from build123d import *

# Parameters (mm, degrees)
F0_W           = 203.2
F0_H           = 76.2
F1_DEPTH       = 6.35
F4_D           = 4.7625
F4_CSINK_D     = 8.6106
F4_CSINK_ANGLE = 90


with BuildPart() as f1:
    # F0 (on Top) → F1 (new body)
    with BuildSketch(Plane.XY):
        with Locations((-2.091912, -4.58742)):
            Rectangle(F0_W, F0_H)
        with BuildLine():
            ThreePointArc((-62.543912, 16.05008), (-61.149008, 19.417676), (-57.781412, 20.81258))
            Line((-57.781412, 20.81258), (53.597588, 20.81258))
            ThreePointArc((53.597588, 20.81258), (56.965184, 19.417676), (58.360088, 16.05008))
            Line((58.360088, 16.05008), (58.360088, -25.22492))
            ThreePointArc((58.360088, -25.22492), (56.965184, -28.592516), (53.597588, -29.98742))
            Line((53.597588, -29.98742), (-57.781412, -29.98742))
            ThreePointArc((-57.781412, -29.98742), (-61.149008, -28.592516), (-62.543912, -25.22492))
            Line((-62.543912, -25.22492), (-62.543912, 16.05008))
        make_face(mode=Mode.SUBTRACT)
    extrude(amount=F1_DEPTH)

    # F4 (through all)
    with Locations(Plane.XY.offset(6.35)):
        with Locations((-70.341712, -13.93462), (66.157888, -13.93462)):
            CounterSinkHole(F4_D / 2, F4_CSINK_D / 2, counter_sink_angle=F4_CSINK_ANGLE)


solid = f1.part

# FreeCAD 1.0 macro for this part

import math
import FreeCAD as App
import Part
import Sketcher
from FreeCAD import Vector
Q = App.Units.Quantity

doc = App.newDocument("Part")
body = doc.addObject("PartDesign::Body", "Body")

# Sketch on XY plane
sketch1 = doc.addObject("Sketcher::SketchObject", "Sketch")
body.addObject(sketch1)
sketch1.AttachmentSupport = (doc.XY_Plane, [""])
sketch1.MapMode = "FlatFace"
sketch1.addGeometry([
    Part.LineSegment(Vector(-103.7, 33.5, 0), Vector(-103.7, -42.7, 0)),  # 0
    Part.LineSegment(Vector(-103.7, -42.7, 0), Vector(99.5, -42.7, 0)),  # 1
    Part.LineSegment(Vector(99.5, -42.7, 0), Vector(99.5, 33.5, 0)),  # 2
    Part.LineSegment(Vector(99.5, 33.5, 0), Vector(-103.7, 33.5, 0)),  # 3
    Part.LineSegment(Vector(-62.5, -25.2, 0), Vector(-62.5, 16.1, 0)),  # 4
    Part.ArcOfCircle(Part.Circle(Vector(-57.8, 16.1, 0), Vector(0, 0, 1), 4.8), math.radians(90), math.radians(180)),  # 5
    Part.LineSegment(Vector(-57.8, 20.8, 0), Vector(53.6, 20.8, 0)),  # 6
    Part.ArcOfCircle(Part.Circle(Vector(53.6, 16.1, 0), Vector(0, 0, 1), 4.8), math.radians(0), math.radians(90)),  # 7
    Part.LineSegment(Vector(58.4, 16.1, 0), Vector(58.4, -25.2, 0)),  # 8
    Part.ArcOfCircle(Part.Circle(Vector(53.6, -25.2, 0), Vector(0, 0, 1), 4.8), math.radians(-90), math.radians(0)),  # 9
    Part.LineSegment(Vector(53.6, -30, 0), Vector(-57.8, -30, 0)),  # 10
    Part.ArcOfCircle(Part.Circle(Vector(-57.8, -25.2, 0), Vector(0, 0, 1), 4.8), math.radians(-180), math.radians(-90)),  # 11
], False)
sketch1.addConstraint([
    Sketcher.Constraint("Coincident", 0, 2, 1, 1),
    Sketcher.Constraint("Coincident", 1, 2, 2, 1),
    Sketcher.Constraint("Coincident", 2, 2, 3, 1),
    Sketcher.Constraint("Coincident", 3, 2, 0, 1),
    Sketcher.Constraint("Tangent", 4, 2, 5, 2),
    Sketcher.Constraint("Tangent", 5, 1, 6, 1),
    Sketcher.Constraint("Tangent", 6, 2, 7, 2),
    Sketcher.Constraint("Tangent", 7, 1, 8, 1),
    Sketcher.Constraint("Tangent", 8, 2, 9, 2),
    Sketcher.Constraint("Tangent", 9, 1, 10, 1),
    Sketcher.Constraint("Tangent", 10, 2, 11, 2),
    Sketcher.Constraint("Tangent", 11, 1, 4, 1),
    Sketcher.Constraint("Vertical", 0),
    Sketcher.Constraint("Horizontal", 1),
    Sketcher.Constraint("Vertical", 2),
    Sketcher.Constraint("Horizontal", 3),
    Sketcher.Constraint("Vertical", 4),
    Sketcher.Constraint("Horizontal", 6),
    Sketcher.Constraint("Vertical", 8),
    Sketcher.Constraint("Horizontal", 10),
    Sketcher.Constraint("Equal", 5, 7),
    Sketcher.Constraint("Equal", 7, 9),
    Sketcher.Constraint("Equal", 9, 11),
    Sketcher.Constraint("DistanceX", 1, 1, 1, 2, Q("8 in")),
    Sketcher.Constraint("DistanceY", 0, 2, 0, 1, Q("3 in")),
    Sketcher.Constraint("Radius", 5, Q("0.1875 in")),
    Sketcher.Constraint("DistanceY", 10, 2, 5, 1, Q("2 in")),
    Sketcher.Constraint("DistanceY", 5, 1, 3, 2, Q("0.5 in")),
    Sketcher.Constraint("DistanceX", 6, 1, 6, 2, Q("4.385 in")),
    Sketcher.Constraint("DistanceX", 3, 2, 4, 2, Q("1.62 in")),
    Sketcher.Constraint("DistanceX", 5, 3, -1, 1, Q("57.781412 mm")),
    Sketcher.Constraint("DistanceY", -1, 1, 5, 3, Q("16.05008 mm")),
])
pad1 = doc.addObject("PartDesign::Pad", "Pad")
body.addObject(pad1)
pad1.Profile = sketch1
pad1.Length = Q("0.25 in")

# Sketch on XY plane
sketch2 = doc.addObject("Sketcher::SketchObject", "Sketch001")
body.addObject(sketch2)
sketch2.AttachmentSupport = (doc.XY_Plane, [""])
sketch2.MapMode = "FlatFace"
sketch2.AttachmentOffset = App.Placement(Vector(0, 0, 0.25 * 25.4), App.Rotation())
sketch2.addGeometry([
    Part.Circle(Vector(-70.3, -13.9, 0), Vector(0, 0, 1), 2.4),
    Part.Circle(Vector(66.2, -13.9, 0), Vector(0, 0, 1), 2.4),
], False)
sketch2.addConstraint([
    Sketcher.Constraint("Equal", 0, 1),
    Sketcher.Constraint("Horizontal", 0, 3, 1, 3),
    Sketcher.Constraint("Diameter", 0, Q("0.1875 in")),
    Sketcher.Constraint("DistanceX", 0, 3, 1, 3, Q("5.374 in")),
    Sketcher.Constraint("DistanceX", 0, 3, -1, 1, Q("70.341712 mm")),
    Sketcher.Constraint("DistanceY", 0, 3, -1, 1, Q("13.93462 mm")),
])
doc.recompute()
hole = doc.addObject("PartDesign::Hole", "Hole")
body.addObject(hole)
hole.Profile = sketch2
hole.ThreadType = "None"
hole.Diameter = Q("0.1875 in")
hole.DepthType = "ThroughAll"
hole.HoleCutType = "Countersink"
hole.HoleCutDiameter = Q("0.339 in")
hole.HoleCutCountersinkAngle = 90

doc.recompute()
